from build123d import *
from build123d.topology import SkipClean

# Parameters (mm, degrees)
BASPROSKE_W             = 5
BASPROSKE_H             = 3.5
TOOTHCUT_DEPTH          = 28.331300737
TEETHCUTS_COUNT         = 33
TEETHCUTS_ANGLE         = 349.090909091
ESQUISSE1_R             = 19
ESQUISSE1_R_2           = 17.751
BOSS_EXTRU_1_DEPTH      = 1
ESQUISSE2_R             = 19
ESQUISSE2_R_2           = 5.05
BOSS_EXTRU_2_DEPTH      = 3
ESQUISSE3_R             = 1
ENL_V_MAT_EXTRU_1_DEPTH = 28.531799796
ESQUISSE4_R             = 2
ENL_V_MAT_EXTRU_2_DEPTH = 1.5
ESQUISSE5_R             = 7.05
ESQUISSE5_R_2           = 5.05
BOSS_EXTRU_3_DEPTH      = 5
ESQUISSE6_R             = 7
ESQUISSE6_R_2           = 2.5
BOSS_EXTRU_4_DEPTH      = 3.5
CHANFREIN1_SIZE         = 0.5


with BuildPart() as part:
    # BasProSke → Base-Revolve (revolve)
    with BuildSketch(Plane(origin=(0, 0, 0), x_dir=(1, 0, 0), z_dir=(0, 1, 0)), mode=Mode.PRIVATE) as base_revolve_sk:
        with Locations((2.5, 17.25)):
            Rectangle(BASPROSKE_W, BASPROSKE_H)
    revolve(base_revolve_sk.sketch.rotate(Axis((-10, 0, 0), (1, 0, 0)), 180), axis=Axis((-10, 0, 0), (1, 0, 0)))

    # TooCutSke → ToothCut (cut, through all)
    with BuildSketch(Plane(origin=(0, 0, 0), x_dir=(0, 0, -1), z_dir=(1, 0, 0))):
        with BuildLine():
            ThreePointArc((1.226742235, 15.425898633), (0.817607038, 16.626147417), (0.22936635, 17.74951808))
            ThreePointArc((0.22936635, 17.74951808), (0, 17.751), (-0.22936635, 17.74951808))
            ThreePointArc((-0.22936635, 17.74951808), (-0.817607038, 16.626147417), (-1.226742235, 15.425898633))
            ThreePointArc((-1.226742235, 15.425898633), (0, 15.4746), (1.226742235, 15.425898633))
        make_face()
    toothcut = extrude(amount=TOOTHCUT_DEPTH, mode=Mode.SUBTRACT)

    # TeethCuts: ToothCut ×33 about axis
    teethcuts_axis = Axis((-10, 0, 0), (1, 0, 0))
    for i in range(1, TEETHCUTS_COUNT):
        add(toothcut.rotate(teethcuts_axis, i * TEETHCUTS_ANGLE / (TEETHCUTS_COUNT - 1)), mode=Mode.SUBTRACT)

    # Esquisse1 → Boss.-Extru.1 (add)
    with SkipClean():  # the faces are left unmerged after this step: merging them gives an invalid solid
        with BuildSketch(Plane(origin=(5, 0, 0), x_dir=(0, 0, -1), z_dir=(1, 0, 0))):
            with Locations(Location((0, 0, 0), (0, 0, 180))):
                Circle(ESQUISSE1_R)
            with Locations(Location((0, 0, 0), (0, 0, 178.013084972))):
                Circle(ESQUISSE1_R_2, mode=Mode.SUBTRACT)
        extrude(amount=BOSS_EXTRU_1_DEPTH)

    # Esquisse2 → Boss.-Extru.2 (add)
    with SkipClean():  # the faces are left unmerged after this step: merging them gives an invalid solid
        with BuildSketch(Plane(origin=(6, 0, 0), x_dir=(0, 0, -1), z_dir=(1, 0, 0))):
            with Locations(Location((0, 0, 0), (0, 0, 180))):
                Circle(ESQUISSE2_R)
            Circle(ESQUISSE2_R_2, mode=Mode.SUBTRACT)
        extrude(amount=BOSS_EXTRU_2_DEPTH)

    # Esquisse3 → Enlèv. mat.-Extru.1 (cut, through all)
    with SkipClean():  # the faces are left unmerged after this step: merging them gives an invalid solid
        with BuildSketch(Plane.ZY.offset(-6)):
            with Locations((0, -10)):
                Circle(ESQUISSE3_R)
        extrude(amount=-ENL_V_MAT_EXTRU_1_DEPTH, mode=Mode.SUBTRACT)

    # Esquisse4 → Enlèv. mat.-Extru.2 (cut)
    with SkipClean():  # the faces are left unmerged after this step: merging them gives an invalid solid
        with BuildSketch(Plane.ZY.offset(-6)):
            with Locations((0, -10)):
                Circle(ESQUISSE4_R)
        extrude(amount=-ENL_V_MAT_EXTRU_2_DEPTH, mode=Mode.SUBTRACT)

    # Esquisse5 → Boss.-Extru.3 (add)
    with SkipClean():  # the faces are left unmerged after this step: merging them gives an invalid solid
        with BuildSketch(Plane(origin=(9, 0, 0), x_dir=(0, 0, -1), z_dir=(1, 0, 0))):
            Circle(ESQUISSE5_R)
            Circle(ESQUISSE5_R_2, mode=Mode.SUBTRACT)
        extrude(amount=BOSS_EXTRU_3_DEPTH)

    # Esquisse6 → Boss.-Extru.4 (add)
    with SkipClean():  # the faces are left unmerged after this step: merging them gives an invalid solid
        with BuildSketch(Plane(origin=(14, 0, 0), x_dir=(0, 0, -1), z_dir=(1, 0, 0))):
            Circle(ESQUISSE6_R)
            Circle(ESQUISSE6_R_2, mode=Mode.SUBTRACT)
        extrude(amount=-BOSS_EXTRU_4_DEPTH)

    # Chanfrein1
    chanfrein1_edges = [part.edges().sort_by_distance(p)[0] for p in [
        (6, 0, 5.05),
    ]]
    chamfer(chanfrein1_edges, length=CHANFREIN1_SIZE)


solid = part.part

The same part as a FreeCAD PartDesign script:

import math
import FreeCAD as App
import Part
import Sketcher

V = App.Vector


def edges_at(feature, points):
    """Names of the edges that pass closest to the given points."""
    edges = feature.Shape.Edges
    near = lambda p: min(range(len(edges)), key=lambda i: edges[i].distToShape(Part.Vertex(*p))[0])
    return sorted({f"Edge{near(p) + 1}" for p in points})


def add_polygon(sketch, points):
    """Adds a closed chain of lines whose ends are joined by coincident constraints."""
    first, n = sketch.GeometryCount, len(points)
    for a, b in zip(points, points[1:] + points[:1]):
        sketch.addGeometry(Part.LineSegment(App.Vector(*a, 0), App.Vector(*b, 0)), False)
    for i in range(n):
        sketch.addConstraint(Sketcher.Constraint("Coincident", first + i, 2, first + (i + 1) % n, 1))

doc = App.newDocument("Part")
body = doc.addObject("PartDesign::Body", "Body")

# Sketch on XZ plane
sketch1 = body.newObject("Sketcher::SketchObject", "Sketch")
sketch1.AttachmentSupport = (doc.getObject("XZ_Plane"), [""])
sketch1.MapMode = "FlatFace"
add_polygon(sketch1, [(0, -19), (0, -15.5), (5, -15.5), (5, -19)])  # lines 0-3
sketch1.addConstraint(Sketcher.Constraint("Vertical", 0))
sketch1.addConstraint(Sketcher.Constraint("Horizontal", 1))
sketch1.addConstraint(Sketcher.Constraint("Vertical", 2))
sketch1.addConstraint(Sketcher.Constraint("Horizontal", 3))
sketch1.addConstraint(Sketcher.Constraint("PointOnObject", 0, 2, -2))
sketch1.addConstraint(Sketcher.Constraint("DistanceX", 1, 1, 1, 2, 5.0))
sketch1.addConstraint(Sketcher.Constraint("DistanceY", 0, 1, 0, 2, 3.5))
sketch1.addConstraint(Sketcher.Constraint("DistanceY", 2, 2, -1, 1, 19.0))
revolution = body.newObject("PartDesign::Revolution", "Revolution")
revolution.Profile = sketch1
revolution.ReferenceAxis = (sketch1, ["H_Axis"])
revolution.Angle = 360

# Sketch on YZ plane
sketch2 = body.newObject("Sketcher::SketchObject", "Sketch001")
sketch2.AttachmentSupport = (doc.getObject("YZ_Plane"), [""])
sketch2.MapMode = "FlatFace"
sketch2.addGeometry(Part.ArcOfCircle(Part.Circle(V(13.372072, 6.76352, 0), V(0, 0, 1), 8.25), math.radians(-75.584689), math.radians(-57.954026)), False)
sketch2.addGeometry(Part.ArcOfCircle(Part.Circle(V(0.000002, 0, 0), V(0, 0, 1), 17.750998), math.radians(-0.740358), math.radians(0.740358)), False)
sketch2.addGeometry(Part.ArcOfCircle(Part.Circle(V(13.372072, -6.76352, 0), V(0, 0, 1), 8.25), math.radians(57.954026), math.radians(75.584689)), False)
sketch2.addGeometry(Part.ArcOfCircle(Part.Circle(V(0, 0, 0), V(0, 0, 1), 15.4746), math.radians(-4.546869), math.radians(4.546869)), False)
sketch2.addConstraint(Sketcher.Constraint("Coincident", 0, 2, 1, 1))
sketch2.addConstraint(Sketcher.Constraint("Coincident", 1, 2, 2, 1))
sketch2.addConstraint(Sketcher.Constraint("Coincident", 2, 2, 3, 2))
sketch2.addConstraint(Sketcher.Constraint("Coincident", 3, 1, 0, 1))
sketch2.addConstraint(Sketcher.Constraint("Coincident", 1, 3, -1, 1))
sketch2.addConstraint(Sketcher.Constraint("Coincident", 3, 3, -1, 1))
sketch2.addConstraint(Sketcher.Constraint("Equal", 0, 2))
sketch2.addConstraint(Sketcher.Constraint("Symmetric", 0, 3, 2, 3, -1))
sketch2.addConstraint(Sketcher.Constraint("Radius", 0, 8.25))
sketch2.addConstraint(Sketcher.Constraint("Radius", 1, 17.750998))
sketch2.addConstraint(Sketcher.Constraint("Radius", 3, 15.4746))
sketch2.addConstraint(Sketcher.Constraint("DistanceX", -1, 1, 2, 2, 15.425899))
sketch2.addConstraint(Sketcher.Constraint("DistanceX", -1, 1, 0, 3, 13.372072))
pocket1 = body.newObject("PartDesign::Pocket", "Pocket")
pocket1.Profile = sketch2
pocket1.Type = "ThroughAll"
pocket1.Reversed = True
doc.recompute()

polarpattern = body.newObject("PartDesign::PolarPattern", "PolarPattern")
polarpattern.Originals = [pocket1]
polarpattern.Axis = (doc.getObject("X_Axis"), [""])
polarpattern.Angle = 360
polarpattern.Occurrences = 33
body.Tip = polarpattern

# Sketch on YZ plane
sketch3 = body.newObject("Sketcher::SketchObject", "Sketch002")
sketch3.AttachmentSupport = (doc.getObject("YZ_Plane"), [""])
sketch3.MapMode = "FlatFace"
sketch3.AttachmentOffset = App.Placement(V(0, 0, 5), App.Rotation())
sketch3.addGeometry(Part.Circle(V(0, 0, 0), V(0, 0, 1), 19), False)
sketch3.addGeometry(Part.Circle(V(0, 0, 0), V(0, 0, 1), 17.751), False)
sketch3.addConstraint(Sketcher.Constraint("Coincident", 0, 3, -1, 1))
sketch3.addConstraint(Sketcher.Constraint("Coincident", 1, 3, -1, 1))
sketch3.addConstraint(Sketcher.Constraint("Diameter", 0, 38.0))
sketch3.addConstraint(Sketcher.Constraint("Diameter", 1, 35.502))
pad1 = body.newObject("PartDesign::Pad", "Pad")
pad1.Profile = sketch3
pad1.Length = 1

# Sketch on YZ plane
sketch4 = body.newObject("Sketcher::SketchObject", "Sketch003")
sketch4.AttachmentSupport = (doc.getObject("YZ_Plane"), [""])
sketch4.MapMode = "FlatFace"
sketch4.AttachmentOffset = App.Placement(V(0, 0, 6), App.Rotation())
sketch4.addGeometry(Part.Circle(V(0, 0, 0), V(0, 0, 1), 19), False)
sketch4.addGeometry(Part.Circle(V(0, 0, 0), V(0, 0, 1), 5.05), False)
sketch4.addConstraint(Sketcher.Constraint("Coincident", 0, 3, -1, 1))
sketch4.addConstraint(Sketcher.Constraint("Coincident", 1, 3, -1, 1))
sketch4.addConstraint(Sketcher.Constraint("Diameter", 0, 38.0))
sketch4.addConstraint(Sketcher.Constraint("Diameter", 1, 10.1))
pad2 = body.newObject("PartDesign::Pad", "Pad001")
pad2.Profile = sketch4
pad2.Length = 3

# Sketch on YZ plane
sketch5 = body.newObject("Sketcher::SketchObject", "Sketch004")
sketch5.AttachmentSupport = (doc.getObject("YZ_Plane"), [""])
sketch5.MapMode = "FlatFace"
sketch5.AttachmentOffset = App.Placement(V(0, 0, 6), App.Rotation())
sketch5.addGeometry(Part.Circle(V(-10, 0, 0), V(0, 0, 1), 1), False)
sketch5.addConstraint(Sketcher.Constraint("PointOnObject", 0, 3, -1))
sketch5.addConstraint(Sketcher.Constraint("Diameter", 0, 2.0))
sketch5.addConstraint(Sketcher.Constraint("DistanceX", 0, 3, -1, 1, 10.0))
pocket2 = body.newObject("PartDesign::Pocket", "Pocket001")
pocket2.Profile = sketch5
pocket2.Type = "ThroughAll"
pocket2.Reversed = True

# Sketch on YZ plane
sketch6 = body.newObject("Sketcher::SketchObject", "Sketch005")
sketch6.AttachmentSupport = (doc.getObject("YZ_Plane"), [""])
sketch6.MapMode = "FlatFace"
sketch6.AttachmentOffset = App.Placement(V(0, 0, 6), App.Rotation())
sketch6.addGeometry(Part.Circle(V(-10, 0, 0), V(0, 0, 1), 2), False)
sketch6.addConstraint(Sketcher.Constraint("PointOnObject", 0, 3, -1))
sketch6.addConstraint(Sketcher.Constraint("Diameter", 0, 4.0))
sketch6.addConstraint(Sketcher.Constraint("DistanceX", 0, 3, -1, 1, 10.0))
pocket3 = body.newObject("PartDesign::Pocket", "Pocket002")
pocket3.Profile = sketch6
pocket3.Length = 1.5
pocket3.Reversed = True

# Sketch on YZ plane
sketch7 = body.newObject("Sketcher::SketchObject", "Sketch006")
sketch7.AttachmentSupport = (doc.getObject("YZ_Plane"), [""])
sketch7.MapMode = "FlatFace"
sketch7.AttachmentOffset = App.Placement(V(0, 0, 9), App.Rotation())
sketch7.addGeometry(Part.Circle(V(0, 0, 0), V(0, 0, 1), 7.05), False)
sketch7.addGeometry(Part.Circle(V(0, 0, 0), V(0, 0, 1), 5.05), False)
sketch7.addConstraint(Sketcher.Constraint("Coincident", 0, 3, -1, 1))
sketch7.addConstraint(Sketcher.Constraint("Coincident", 1, 3, -1, 1))
sketch7.addConstraint(Sketcher.Constraint("Diameter", 0, 14.1))
sketch7.addConstraint(Sketcher.Constraint("Diameter", 1, 10.1))
pad3 = body.newObject("PartDesign::Pad", "Pad002")
pad3.Profile = sketch7
pad3.Length = 5

# Sketch on YZ plane
sketch8 = body.newObject("Sketcher::SketchObject", "Sketch007")
sketch8.AttachmentSupport = (doc.getObject("YZ_Plane"), [""])
sketch8.MapMode = "FlatFace"
sketch8.AttachmentOffset = App.Placement(V(0, 0, 14), App.Rotation())
sketch8.addGeometry(Part.Circle(V(0, 0, 0), V(0, 0, 1), 7), False)
sketch8.addGeometry(Part.Circle(V(0, 0, 0), V(0, 0, 1), 2.5), False)
sketch8.addConstraint(Sketcher.Constraint("Coincident", 0, 3, -1, 1))
sketch8.addConstraint(Sketcher.Constraint("Coincident", 1, 3, -1, 1))
sketch8.addConstraint(Sketcher.Constraint("Diameter", 0, 14.0))
sketch8.addConstraint(Sketcher.Constraint("Diameter", 1, 5.0))
pad4 = body.newObject("PartDesign::Pad", "Pad003")
pad4.Profile = sketch8
pad4.Length = 3.5
pad4.Reversed = True
doc.recompute()

chamfer = body.newObject("PartDesign::Chamfer", "Chamfer")
chamfer.Base = (pad4, edges_at(pad4, [(6, 0, 5.05)]))
chamfer.Size = 0.5

doc.recompute()
